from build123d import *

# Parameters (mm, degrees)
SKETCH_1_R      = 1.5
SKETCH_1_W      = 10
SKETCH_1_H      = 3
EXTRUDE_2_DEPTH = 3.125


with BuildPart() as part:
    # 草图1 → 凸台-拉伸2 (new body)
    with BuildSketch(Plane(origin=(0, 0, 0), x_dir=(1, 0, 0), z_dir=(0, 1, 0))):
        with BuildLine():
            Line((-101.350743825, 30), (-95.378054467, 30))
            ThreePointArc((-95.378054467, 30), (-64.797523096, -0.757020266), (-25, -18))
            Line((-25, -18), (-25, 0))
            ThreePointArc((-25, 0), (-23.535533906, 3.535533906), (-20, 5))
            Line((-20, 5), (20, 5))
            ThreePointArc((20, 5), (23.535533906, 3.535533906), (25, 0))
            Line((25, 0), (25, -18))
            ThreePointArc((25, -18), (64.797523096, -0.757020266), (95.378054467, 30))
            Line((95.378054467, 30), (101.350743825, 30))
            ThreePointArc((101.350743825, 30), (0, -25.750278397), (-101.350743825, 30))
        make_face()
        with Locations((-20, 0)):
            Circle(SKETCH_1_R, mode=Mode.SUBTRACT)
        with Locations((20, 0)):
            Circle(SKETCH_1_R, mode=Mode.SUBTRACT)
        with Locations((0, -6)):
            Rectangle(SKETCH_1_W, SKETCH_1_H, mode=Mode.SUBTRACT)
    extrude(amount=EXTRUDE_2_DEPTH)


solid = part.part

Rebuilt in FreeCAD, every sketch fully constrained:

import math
import FreeCAD as App
import Part
import Sketcher
from FreeCAD import Vector

doc = App.newDocument("Part")
body = doc.addObject("PartDesign::Body", "Body")

# Sketch on XZ plane
sketch1 = body.newObject("Sketcher::SketchObject", "Sketch")
sketch1.AttachmentSupport = (doc.getObject("XZ_Plane"), [""])
sketch1.MapMode = "FlatFace"
sketch1.addGeometry(Part.LineSegment(Vector(-95.4, -30, 0), Vector(-101.4, -30, 0)), False)
sketch1.addGeometry(Part.ArcOfCircle(Part.Circle(Vector(0, -94.2, 0), Vector(0, 0, 1), 120), math.radians(32), math.radians(148)), False)
sketch1.addGeometry(Part.LineSegment(Vector(101.4, -30, 0), Vector(95.4, -30, 0)), False)
sketch1.addGeometry(Part.ArcOfCircle(Part.Circle(Vector(0, -94.2, 0), Vector(0, 0, 1), 115), math.radians(34), math.radians(77)), False)
sketch1.addGeometry(Part.LineSegment(Vector(25, 18, 0), Vector(25, 0, 0)), False)
sketch1.addGeometry(Part.ArcOfCircle(Part.Circle(Vector(20, 0, 0), Vector(0, 0, 1), 5), math.radians(-90), math.radians(0)), False)
sketch1.addGeometry(Part.LineSegment(Vector(20, -5, 0), Vector(-20, -5, 0)), False)
sketch1.addGeometry(Part.ArcOfCircle(Part.Circle(Vector(-20, 0, 0), Vector(0, 0, 1), 5), math.radians(180), math.radians(270)), False)
sketch1.addGeometry(Part.LineSegment(Vector(-25, 0, 0), Vector(-25, 18, 0)), False)
sketch1.addGeometry(Part.ArcOfCircle(Part.Circle(Vector(0, -94.2, 0), Vector(0, 0, 1), 115), math.radians(103), math.radians(146)), False)
sketch1.addGeometry(Part.LineSegment(Vector(-5, 7.5, 0), Vector(-5, 4.5, 0)), False)
sketch1.addGeometry(Part.LineSegment(Vector(-5, 4.5, 0), Vector(5, 4.5, 0)), False)
sketch1.addGeometry(Part.LineSegment(Vector(5, 4.5, 0), Vector(5, 7.5, 0)), False)
sketch1.addGeometry(Part.LineSegment(Vector(5, 7.5, 0), Vector(-5, 7.5, 0)), False)
sketch1.addGeometry(Part.Circle(Vector(20, 0, 0), Vector(0, 0, 1), 1.5), False)
sketch1.addGeometry(Part.Circle(Vector(-20, 0, 0), Vector(0, 0, 1), 1.5), False)
sketch1.addConstraint(Sketcher.Constraint("Coincident", 0, 2, 1, 2))
sketch1.addConstraint(Sketcher.Constraint("Coincident", 1, 1, 2, 1))
sketch1.addConstraint(Sketcher.Constraint("Coincident", 2, 2, 3, 1))
sketch1.addConstraint(Sketcher.Constraint("Coincident", 3, 2, 4, 1))
sketch1.addConstraint(Sketcher.Constraint("Tangent", 4, 2, 5, 2))
sketch1.addConstraint(Sketcher.Constraint("Tangent", 5, 1, 6, 1))
sketch1.addConstraint(Sketcher.Constraint("Tangent", 6, 2, 7, 2))
sketch1.addConstraint(Sketcher.Constraint("Tangent", 7, 1, 8, 1))
sketch1.addConstraint(Sketcher.Constraint("Coincident", 8, 2, 9, 1))
sketch1.addConstraint(Sketcher.Constraint("Coincident", 9, 2, 0, 1))
sketch1.addConstraint(Sketcher.Constraint("Coincident", 10, 2, 11, 1))
sketch1.addConstraint(Sketcher.Constraint("Coincident", 11, 2, 12, 1))
sketch1.addConstraint(Sketcher.Constraint("Coincident", 12, 2, 13, 1))
sketch1.addConstraint(Sketcher.Constraint("Coincident", 13, 2, 10, 1))
sketch1.addConstraint(Sketcher.Constraint("Horizontal", 0))
sketch1.addConstraint(Sketcher.Constraint("Horizontal", 2))
sketch1.addConstraint(Sketcher.Constraint("Vertical", 4))
sketch1.addConstraint(Sketcher.Constraint("Horizontal", 6))
sketch1.addConstraint(Sketcher.Constraint("Vertical", 8))
sketch1.addConstraint(Sketcher.Constraint("Vertical", 10))
sketch1.addConstraint(Sketcher.Constraint("Horizontal", 11))
sketch1.addConstraint(Sketcher.Constraint("Vertical", 12))
sketch1.addConstraint(Sketcher.Constraint("Horizontal", 13))
sketch1.addConstraint(Sketcher.Constraint("Coincident", 3, 3, 1, 3))
sketch1.addConstraint(Sketcher.Constraint("Coincident", 9, 3, 1, 3))
sketch1.addConstraint(Sketcher.Constraint("Coincident", 14, 3, 5, 3))
sketch1.addConstraint(Sketcher.Constraint("Coincident", 15, 3, 7, 3))
sketch1.addConstraint(Sketcher.Constraint("Equal", 5, 7))
sketch1.addConstraint(Sketcher.Constraint("Equal", 3, 9))
sketch1.addConstraint(Sketcher.Constraint("Equal", 14, 15))
sketch1.addConstraint(Sketcher.Constraint("Symmetric", 5, 3, 7, 3, -1, 1))
sketch1.addConstraint(Sketcher.Constraint("Symmetric", 0, 2, 1, 1, -2))
sketch1.addConstraint(Sketcher.Constraint("Diameter", 14, 3.0))
sketch1.addConstraint(Sketcher.Constraint("Radius", 1, 120.0))
sketch1.addConstraint(Sketcher.Constraint("Radius", 3, 115.0))
sketch1.addConstraint(Sketcher.Constraint("Radius", 5, 5.0))
sketch1.addConstraint(Sketcher.Constraint("DistanceX", 6, 2, 6, 1, 40.0))
sketch1.addConstraint(Sketcher.Constraint("DistanceX", 11, 1, 11, 2, 10.0))
sketch1.addConstraint(Sketcher.Constraint("DistanceY", 4, 2, 4, 1, 18.0))
sketch1.addConstraint(Sketcher.Constraint("DistanceY", 10, 2, 10, 1, 3.0))
sketch1.addConstraint(Sketcher.Constraint("DistanceY", 0, 2, -1, 1, 30.0))
sketch1.addConstraint(Sketcher.Constraint("DistanceX", 10, 2, -1, 1, 5.0))
sketch1.addConstraint(Sketcher.Constraint("DistanceY", -1, 1, 10, 2, 4.5))
pad1 = body.newObject("PartDesign::Pad", "Pad")
pad1.Profile = sketch1
pad1.Length = 3.125
pad1.Reversed = True

doc.recompute()
